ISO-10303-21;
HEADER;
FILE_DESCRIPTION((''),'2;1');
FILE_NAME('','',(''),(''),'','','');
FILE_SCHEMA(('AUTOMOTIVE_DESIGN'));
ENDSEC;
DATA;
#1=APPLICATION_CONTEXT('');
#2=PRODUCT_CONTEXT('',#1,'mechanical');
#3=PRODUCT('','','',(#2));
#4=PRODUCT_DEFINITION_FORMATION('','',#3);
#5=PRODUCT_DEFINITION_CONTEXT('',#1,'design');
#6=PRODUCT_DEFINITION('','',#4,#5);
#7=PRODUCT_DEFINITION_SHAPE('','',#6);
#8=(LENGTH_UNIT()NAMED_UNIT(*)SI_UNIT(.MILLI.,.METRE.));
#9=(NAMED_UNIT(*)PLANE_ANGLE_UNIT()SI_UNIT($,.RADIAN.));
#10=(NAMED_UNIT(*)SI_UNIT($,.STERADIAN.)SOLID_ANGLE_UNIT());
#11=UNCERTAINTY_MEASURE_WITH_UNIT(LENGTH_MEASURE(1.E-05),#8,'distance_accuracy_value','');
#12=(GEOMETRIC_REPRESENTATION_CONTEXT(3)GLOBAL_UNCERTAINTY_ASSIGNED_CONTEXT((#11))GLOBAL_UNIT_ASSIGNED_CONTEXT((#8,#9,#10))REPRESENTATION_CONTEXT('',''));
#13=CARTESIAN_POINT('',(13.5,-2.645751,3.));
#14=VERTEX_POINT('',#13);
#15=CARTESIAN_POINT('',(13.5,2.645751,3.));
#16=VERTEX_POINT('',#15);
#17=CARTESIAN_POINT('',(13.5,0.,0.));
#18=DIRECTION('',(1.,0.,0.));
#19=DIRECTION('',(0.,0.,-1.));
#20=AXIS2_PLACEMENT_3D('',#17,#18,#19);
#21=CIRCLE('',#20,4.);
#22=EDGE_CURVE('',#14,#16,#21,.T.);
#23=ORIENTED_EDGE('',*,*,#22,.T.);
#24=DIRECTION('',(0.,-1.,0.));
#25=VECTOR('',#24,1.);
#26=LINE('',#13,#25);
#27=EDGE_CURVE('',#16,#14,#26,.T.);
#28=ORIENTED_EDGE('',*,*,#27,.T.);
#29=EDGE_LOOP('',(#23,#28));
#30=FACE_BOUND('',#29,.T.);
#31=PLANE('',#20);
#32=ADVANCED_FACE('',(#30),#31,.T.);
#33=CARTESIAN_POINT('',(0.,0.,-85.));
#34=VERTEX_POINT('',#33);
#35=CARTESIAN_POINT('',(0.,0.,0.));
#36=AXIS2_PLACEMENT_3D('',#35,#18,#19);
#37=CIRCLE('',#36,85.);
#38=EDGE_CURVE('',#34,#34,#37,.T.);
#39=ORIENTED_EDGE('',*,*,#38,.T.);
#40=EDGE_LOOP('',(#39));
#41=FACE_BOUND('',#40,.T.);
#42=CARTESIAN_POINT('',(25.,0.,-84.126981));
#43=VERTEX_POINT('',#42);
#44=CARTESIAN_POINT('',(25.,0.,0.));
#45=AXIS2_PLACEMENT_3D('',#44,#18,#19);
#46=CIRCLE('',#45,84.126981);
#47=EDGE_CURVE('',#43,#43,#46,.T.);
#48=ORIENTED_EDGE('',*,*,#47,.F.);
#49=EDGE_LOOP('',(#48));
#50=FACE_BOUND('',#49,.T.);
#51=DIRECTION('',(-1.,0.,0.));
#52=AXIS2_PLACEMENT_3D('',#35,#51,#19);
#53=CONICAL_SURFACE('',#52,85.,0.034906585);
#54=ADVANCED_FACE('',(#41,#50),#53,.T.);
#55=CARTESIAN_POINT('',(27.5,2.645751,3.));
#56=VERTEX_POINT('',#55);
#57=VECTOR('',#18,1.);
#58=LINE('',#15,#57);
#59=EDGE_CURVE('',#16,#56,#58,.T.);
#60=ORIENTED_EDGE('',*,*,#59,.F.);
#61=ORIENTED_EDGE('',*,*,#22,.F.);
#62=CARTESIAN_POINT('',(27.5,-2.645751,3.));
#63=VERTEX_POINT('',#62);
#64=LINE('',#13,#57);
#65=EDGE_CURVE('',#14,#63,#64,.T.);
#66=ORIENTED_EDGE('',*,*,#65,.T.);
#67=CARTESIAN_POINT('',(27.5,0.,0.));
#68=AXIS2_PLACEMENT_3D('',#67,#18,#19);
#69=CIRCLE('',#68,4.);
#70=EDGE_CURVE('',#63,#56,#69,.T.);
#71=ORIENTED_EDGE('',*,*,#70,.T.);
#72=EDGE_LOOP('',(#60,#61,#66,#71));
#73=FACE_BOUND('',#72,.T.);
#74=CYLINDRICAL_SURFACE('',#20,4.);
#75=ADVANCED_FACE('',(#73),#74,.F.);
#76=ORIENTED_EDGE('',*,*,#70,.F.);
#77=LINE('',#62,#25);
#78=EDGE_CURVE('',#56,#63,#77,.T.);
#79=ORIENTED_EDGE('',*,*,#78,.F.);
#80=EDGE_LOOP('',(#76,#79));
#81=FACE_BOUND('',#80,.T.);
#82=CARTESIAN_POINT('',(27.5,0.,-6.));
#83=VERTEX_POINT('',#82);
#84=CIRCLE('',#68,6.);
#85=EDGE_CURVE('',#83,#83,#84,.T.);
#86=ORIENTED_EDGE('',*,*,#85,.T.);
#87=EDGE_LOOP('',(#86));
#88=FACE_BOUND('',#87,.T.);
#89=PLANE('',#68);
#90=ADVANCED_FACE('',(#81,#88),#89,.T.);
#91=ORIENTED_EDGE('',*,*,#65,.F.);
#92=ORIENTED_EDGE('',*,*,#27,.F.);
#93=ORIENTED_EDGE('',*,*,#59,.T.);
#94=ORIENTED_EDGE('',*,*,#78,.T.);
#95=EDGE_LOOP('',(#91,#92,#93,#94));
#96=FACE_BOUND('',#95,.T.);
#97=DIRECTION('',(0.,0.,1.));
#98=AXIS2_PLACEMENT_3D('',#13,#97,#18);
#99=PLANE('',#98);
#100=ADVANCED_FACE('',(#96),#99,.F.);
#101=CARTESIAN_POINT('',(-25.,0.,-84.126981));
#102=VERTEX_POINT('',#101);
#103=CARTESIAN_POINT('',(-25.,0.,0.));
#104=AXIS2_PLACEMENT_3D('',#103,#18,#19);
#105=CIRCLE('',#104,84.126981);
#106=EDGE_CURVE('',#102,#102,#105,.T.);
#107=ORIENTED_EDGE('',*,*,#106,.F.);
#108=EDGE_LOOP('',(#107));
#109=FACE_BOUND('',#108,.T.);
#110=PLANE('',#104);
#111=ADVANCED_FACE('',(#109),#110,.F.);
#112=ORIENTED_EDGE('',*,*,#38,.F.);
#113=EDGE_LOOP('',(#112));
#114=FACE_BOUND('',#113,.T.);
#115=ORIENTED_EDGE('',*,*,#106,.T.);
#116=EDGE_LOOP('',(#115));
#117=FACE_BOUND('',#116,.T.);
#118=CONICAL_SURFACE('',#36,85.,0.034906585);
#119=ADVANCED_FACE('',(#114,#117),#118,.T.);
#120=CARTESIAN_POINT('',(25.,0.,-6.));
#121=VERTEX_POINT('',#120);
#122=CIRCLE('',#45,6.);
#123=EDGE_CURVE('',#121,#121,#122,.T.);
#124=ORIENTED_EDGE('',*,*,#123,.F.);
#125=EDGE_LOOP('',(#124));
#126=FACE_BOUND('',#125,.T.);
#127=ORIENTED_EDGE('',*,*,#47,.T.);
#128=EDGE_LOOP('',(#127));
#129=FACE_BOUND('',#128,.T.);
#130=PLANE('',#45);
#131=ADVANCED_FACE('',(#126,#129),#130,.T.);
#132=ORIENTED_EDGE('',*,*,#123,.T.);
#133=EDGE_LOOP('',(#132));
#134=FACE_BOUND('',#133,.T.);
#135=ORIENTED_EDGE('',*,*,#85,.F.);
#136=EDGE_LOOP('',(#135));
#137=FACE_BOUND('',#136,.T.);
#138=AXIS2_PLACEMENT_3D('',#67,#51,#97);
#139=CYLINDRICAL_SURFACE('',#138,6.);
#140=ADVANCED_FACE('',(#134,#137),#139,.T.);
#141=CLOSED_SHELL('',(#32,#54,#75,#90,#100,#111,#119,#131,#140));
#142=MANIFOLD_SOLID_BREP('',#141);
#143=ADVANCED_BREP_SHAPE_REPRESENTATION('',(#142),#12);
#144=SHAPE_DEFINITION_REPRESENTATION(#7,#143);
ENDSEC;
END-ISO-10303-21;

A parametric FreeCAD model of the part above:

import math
import FreeCAD as App
import Part
import Sketcher
Q = App.Units.Quantity

doc = App.newDocument("Part")
body = doc.addObject("PartDesign::Body", "Body")

sketch1 = body.newObject("Sketcher::SketchObject", "Sketch")
sketch1.AttachmentSupport = (doc.getObject("YZ_Plane"), [""])
sketch1.MapMode = "FlatFace"
sketch1.addGeometry(Part.Circle(App.Vector(0, 0, 0), App.Vector(0, 0, 1), 85), False)
sketch1.addConstraint([
    Sketcher.Constraint("Coincident", 0, 3, -1, 1),
    Sketcher.Constraint("Diameter", 0, Q("170 mm")),
])
pad1 = body.newObject("PartDesign::Pad", "Pad")
pad1.Profile = sketch1
pad1.Length = 25
pad1.TaperAngle = -2

sketch2 = body.newObject("Sketcher::SketchObject", "Sketch001")
sketch2.AttachmentSupport = (doc.getObject("YZ_Plane"), [""])
sketch2.MapMode = "FlatFace"
sketch2.addGeometry(Part.Circle(App.Vector(0, 0, 0), App.Vector(0, 0, 1), 85), False)
sketch2.addConstraint([
    Sketcher.Constraint("Coincident", 0, 3, -1, 1),
    Sketcher.Constraint("Diameter", 0, Q("170 mm")),
])
pad2 = body.newObject("PartDesign::Pad", "Pad001")
pad2.Profile = sketch2
pad2.Length = 25
pad2.Reversed = True
pad2.TaperAngle = -2

sketch3 = body.newObject("Sketcher::SketchObject", "Sketch002")
sketch3.AttachmentSupport = (doc.getObject("YZ_Plane"), [""])
sketch3.MapMode = "FlatFace"
sketch3.AttachmentOffset = App.Placement(App.Vector(0, 0, 25), App.Rotation())
sketch3.addGeometry(Part.Circle(App.Vector(0, 0, 0), App.Vector(0, 0, 1), 6), False)
sketch3.addConstraint([
    Sketcher.Constraint("Coincident", 0, 3, -1, 1),
    Sketcher.Constraint("Diameter", 0, Q("12 mm")),
])
pad3 = body.newObject("PartDesign::Pad", "Pad002")
pad3.Profile = sketch3
pad3.Length = 2.5

sketch4 = body.newObject("Sketcher::SketchObject", "Sketch003")
sketch4.AttachmentSupport = (doc.getObject("YZ_Plane"), [""])
sketch4.MapMode = "FlatFace"
sketch4.AttachmentOffset = App.Placement(App.Vector(0, 0, 27.5), App.Rotation())
sketch4.addGeometry([
    Part.LineSegment(App.Vector(2.645751, 3, 0), App.Vector(-2.645751, 3, 0)),
    Part.ArcOfCircle(Part.Circle(App.Vector(0, 0, 0), App.Vector(0, 0, 1), 4), math.radians(131.409622), math.radians(408.590378)),
], False)
sketch4.addConstraint([
    Sketcher.Constraint("Coincident", 0, 1, 1, 2),
    Sketcher.Constraint("Coincident", 1, 1, 0, 2),
    Sketcher.Constraint("Horizontal", 0),
    Sketcher.Constraint("Coincident", 1, 3, -1, 1),
    Sketcher.Constraint("Radius", 1, Q("4 mm")),
    Sketcher.Constraint("DistanceY", -1, 1, 0, 1, Q("3 mm")),
])
pocket1 = body.newObject("PartDesign::Pocket", "Pocket")
pocket1.Profile = sketch4
pocket1.Length = 14

doc.recompute()
